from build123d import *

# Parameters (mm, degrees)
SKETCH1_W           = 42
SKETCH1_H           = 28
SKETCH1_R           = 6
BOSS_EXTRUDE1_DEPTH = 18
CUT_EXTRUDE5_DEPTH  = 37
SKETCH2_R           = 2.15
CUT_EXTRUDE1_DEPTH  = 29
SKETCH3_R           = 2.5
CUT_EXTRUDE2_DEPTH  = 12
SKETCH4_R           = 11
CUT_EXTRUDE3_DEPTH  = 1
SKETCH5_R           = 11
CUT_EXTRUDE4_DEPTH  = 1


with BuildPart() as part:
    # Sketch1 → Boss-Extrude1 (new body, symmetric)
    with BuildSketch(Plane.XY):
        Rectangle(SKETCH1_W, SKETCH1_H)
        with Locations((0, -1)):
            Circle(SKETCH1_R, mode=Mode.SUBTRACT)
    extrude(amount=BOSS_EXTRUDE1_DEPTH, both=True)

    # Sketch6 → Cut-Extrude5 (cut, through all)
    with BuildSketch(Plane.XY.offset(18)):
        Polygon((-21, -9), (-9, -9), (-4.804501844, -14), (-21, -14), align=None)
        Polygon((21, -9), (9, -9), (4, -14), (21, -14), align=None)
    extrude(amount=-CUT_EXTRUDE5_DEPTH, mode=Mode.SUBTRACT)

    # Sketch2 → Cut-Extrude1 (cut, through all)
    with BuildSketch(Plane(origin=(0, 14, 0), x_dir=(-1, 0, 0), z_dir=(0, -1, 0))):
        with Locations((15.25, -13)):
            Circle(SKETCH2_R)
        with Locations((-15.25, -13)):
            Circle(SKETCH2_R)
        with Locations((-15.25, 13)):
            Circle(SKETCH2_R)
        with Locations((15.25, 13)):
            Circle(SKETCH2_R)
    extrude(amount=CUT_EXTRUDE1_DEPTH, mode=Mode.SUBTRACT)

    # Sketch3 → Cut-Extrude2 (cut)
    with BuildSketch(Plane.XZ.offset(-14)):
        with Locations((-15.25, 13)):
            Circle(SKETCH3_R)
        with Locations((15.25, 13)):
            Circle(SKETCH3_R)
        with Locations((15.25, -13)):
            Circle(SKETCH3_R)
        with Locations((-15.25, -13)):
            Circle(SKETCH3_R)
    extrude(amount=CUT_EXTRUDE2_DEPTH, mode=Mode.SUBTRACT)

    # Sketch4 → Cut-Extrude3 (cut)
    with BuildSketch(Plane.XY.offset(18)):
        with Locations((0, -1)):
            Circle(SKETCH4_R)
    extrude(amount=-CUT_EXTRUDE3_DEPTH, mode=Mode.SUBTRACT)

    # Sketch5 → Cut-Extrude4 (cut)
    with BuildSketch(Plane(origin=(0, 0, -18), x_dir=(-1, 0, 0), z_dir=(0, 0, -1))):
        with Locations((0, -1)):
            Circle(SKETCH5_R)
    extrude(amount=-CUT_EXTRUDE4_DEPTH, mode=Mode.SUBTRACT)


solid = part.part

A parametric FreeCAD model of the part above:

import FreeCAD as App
import Part
import Sketcher
from FreeCAD import Vector
Q = App.Units.Quantity


def add_polygon(sketch, points):
    """Adds a closed chain of lines whose ends are joined by coincident constraints."""
    first, n = sketch.GeometryCount, len(points)
    for a, b in zip(points, points[1:] + points[:1]):
        sketch.addGeometry(Part.LineSegment(App.Vector(*a, 0), App.Vector(*b, 0)), False)
    for i in range(n):
        sketch.addConstraint(Sketcher.Constraint("Coincident", first + i, 2, first + (i + 1) % n, 1))

doc = App.newDocument("Part")
params = doc.addObject("Spreadsheet::Sheet", "Params")
for row, (alias, value) in enumerate([
    ("sketch1_diameter", "12 mm"),
    ("sketch1_width", "42 mm"),
    ("sketch1_height", "28 mm"),
    ("pad1_length", "36 mm"),
    ("sketch2_width", "12 mm"),
    ("sketch2_width2", "17 mm"),
    ("sketch2_height", "5 mm"),
    ("sketch3_diameter", "4.3 mm"),
    ("sketch4_diameter", "5 mm"),
    ("pocket3_length", "12 mm"),
    ("sketch5_diameter", "22 mm"),
    ("pocket4_length", "1 mm"),
    ("sketch6_diameter", "22 mm"),
    ("pocket5_length", "1 mm"),
], start=1):
    params.set(f"A{row}", alias)
    params.set(f"B{row}", "=" + value)
    params.setAlias(f"B{row}", alias)

body = doc.addObject("PartDesign::Body", "Body")

sketch1 = doc.addObject("Sketcher::SketchObject", "Sketch")
body.addObject(sketch1)
sketch1.AttachmentSupport = (doc.XY_Plane, [""])
sketch1.MapMode = "FlatFace"
add_polygon(sketch1, [(-21, 14), (-21, -14), (21, -14), (21, 14)])
sketch1.addGeometry(Part.Circle(Vector(0, -1, 0), Vector(0, 0, 1), 6), False)
sketch1.addConstraint([
    Sketcher.Constraint("Vertical", 0),
    Sketcher.Constraint("Horizontal", 1),
    Sketcher.Constraint("Vertical", 2),
    Sketcher.Constraint("Horizontal", 3),
    Sketcher.Constraint("Symmetric", 0, 2, 2, 2, -1, 1),
    Sketcher.Constraint("PointOnObject", 4, 3, -2),
    Sketcher.Constraint("Diameter", 4, Q("12 mm")),
    Sketcher.Constraint("DistanceX", 1, 1, 1, 2, Q("42 mm")),
    Sketcher.Constraint("DistanceY", 0, 2, 0, 1, Q("28 mm")),
    Sketcher.Constraint("DistanceY", 4, 3, -1, 1, Q("1 mm")),
])
sketch1.setExpression("Constraints[10]", "Params.sketch1_diameter")
sketch1.setExpression("Constraints[11]", "Params.sketch1_width")
sketch1.setExpression("Constraints[12]", "Params.sketch1_height")
pad1 = doc.addObject("PartDesign::Pad", "Pad")
body.addObject(pad1)
pad1.Profile = sketch1
pad1.setExpression("Length", "Params.pad1_length")
pad1.Midplane = True

sketch2 = doc.addObject("Sketcher::SketchObject", "Sketch001")
body.addObject(sketch2)
sketch2.AttachmentSupport = (doc.XY_Plane, [""])
sketch2.MapMode = "FlatFace"
sketch2.AttachmentOffset = App.Placement(Vector(0, 0, 18), App.Rotation())
add_polygon(sketch2, [(-9, -9), (-21, -9), (-21, -14), (-4.804502, -14)])
add_polygon(sketch2, [(21, -9), (9, -9), (4, -14), (21, -14)])
sketch2.addConstraint([
    Sketcher.Constraint("Horizontal", 0),
    Sketcher.Constraint("Vertical", 1),
    Sketcher.Constraint("Horizontal", 2),
    Sketcher.Constraint("Horizontal", 4),
    Sketcher.Constraint("Horizontal", 6),
    Sketcher.Constraint("Vertical", 7),
    Sketcher.Constraint("Symmetric", 3, 2, 4, 2, -2),
    Sketcher.Constraint("Symmetric", 1, 2, 6, 2, -2),
    Sketcher.Constraint("DistanceX", 0, 2, 0, 1, Q("12 mm")),
    Sketcher.Constraint("DistanceX", 6, 1, 6, 2, Q("17 mm")),
    Sketcher.Constraint("DistanceY", 1, 2, 1, 1, Q("5 mm")),
    Sketcher.Constraint("Angle", 3, Q("130 deg")),
    Sketcher.Constraint("DistanceX", 0, 2, -1, 1, Q("21 mm")),
    Sketcher.Constraint("DistanceY", 0, 2, -1, 1, Q("9 mm")),
])
sketch2.setExpression("Constraints[16]", "Params.sketch2_width")
sketch2.setExpression("Constraints[17]", "Params.sketch2_width2")
sketch2.setExpression("Constraints[18]", "Params.sketch2_height")
pocket1 = doc.addObject("PartDesign::Pocket", "Pocket")
body.addObject(pocket1)
pocket1.Profile = sketch2
pocket1.Type = "ThroughAll"

sketch3 = doc.addObject("Sketcher::SketchObject", "Sketch002")
body.addObject(sketch3)
sketch3.AttachmentSupport = (doc.XZ_Plane, [""])
sketch3.MapMode = "FlatFace"
sketch3.AttachmentOffset = App.Placement(Vector(0, 0, -14), App.Rotation())
sketch3.addGeometry([
    Part.Circle(Vector(-15.25, 13, 0), Vector(0, 0, 1), 2.15),
    Part.Circle(Vector(15.25, 13, 0), Vector(0, 0, 1), 2.15),
    Part.Circle(Vector(15.25, -13, 0), Vector(0, 0, 1), 2.15),
    Part.Circle(Vector(-15.25, -13, 0), Vector(0, 0, 1), 2.15),
], False)
sketch3.addConstraint([
    Sketcher.Constraint("Equal", 0, 1),
    Sketcher.Constraint("Equal", 1, 2),
    Sketcher.Constraint("Equal", 2, 3),
    Sketcher.Constraint("Symmetric", 0, 3, 2, 3, -1, 1),
    Sketcher.Constraint("Symmetric", 1, 3, 3, 3, -1, 1),
    Sketcher.Constraint("Symmetric", 0, 3, 1, 3, -2),
    Sketcher.Constraint("Diameter", 0, Q("4.3 mm")),
    Sketcher.Constraint("DistanceY", -1, 1, 0, 3, Q("13 mm")),
    Sketcher.Constraint("DistanceX", 0, 3, 1, 3, Q("30.5 mm")),
])
sketch3.setExpression("Constraints[6]", "Params.sketch3_diameter")
pocket2 = doc.addObject("PartDesign::Pocket", "Pocket001")
body.addObject(pocket2)
pocket2.Profile = sketch3
pocket2.Type = "ThroughAll"
pocket2.Reversed = True

sketch4 = doc.addObject("Sketcher::SketchObject", "Sketch003")
body.addObject(sketch4)
sketch4.AttachmentSupport = (doc.XZ_Plane, [""])
sketch4.MapMode = "FlatFace"
sketch4.AttachmentOffset = App.Placement(Vector(0, 0, -14), App.Rotation())
sketch4.addGeometry([
    Part.Circle(Vector(-15.25, 13, 0), Vector(0, 0, 1), 2.5),
    Part.Circle(Vector(15.25, 13, 0), Vector(0, 0, 1), 2.5),
    Part.Circle(Vector(15.25, -13, 0), Vector(0, 0, 1), 2.5),
    Part.Circle(Vector(-15.25, -13, 0), Vector(0, 0, 1), 2.5),
], False)
sketch4.addConstraint([
    Sketcher.Constraint("Equal", 0, 1),
    Sketcher.Constraint("Equal", 1, 2),
    Sketcher.Constraint("Equal", 2, 3),
    Sketcher.Constraint("Symmetric", 0, 3, 2, 3, -1, 1),
    Sketcher.Constraint("Symmetric", 1, 3, 3, 3, -1, 1),
    Sketcher.Constraint("Symmetric", 0, 3, 1, 3, -2),
    Sketcher.Constraint("Diameter", 0, Q("5 mm")),
    Sketcher.Constraint("DistanceY", -1, 1, 0, 3, Q("13 mm")),
    Sketcher.Constraint("DistanceX", 0, 3, 1, 3, Q("30.5 mm")),
])
sketch4.setExpression("Constraints[6]", "Params.sketch4_diameter")
pocket3 = doc.addObject("PartDesign::Pocket", "Pocket002")
body.addObject(pocket3)
pocket3.Profile = sketch4
pocket3.setExpression("Length", "Params.pocket3_length")
pocket3.Reversed = True

sketch5 = doc.addObject("Sketcher::SketchObject", "Sketch004")
body.addObject(sketch5)
sketch5.AttachmentSupport = (doc.XY_Plane, [""])
sketch5.MapMode = "FlatFace"
sketch5.AttachmentOffset = App.Placement(Vector(0, 0, 18), App.Rotation())
sketch5.addGeometry(Part.Circle(Vector(0, -1, 0), Vector(0, 0, 1), 11), False)
sketch5.addConstraint([
    Sketcher.Constraint("PointOnObject", 0, 3, -2),
    Sketcher.Constraint("Diameter", 0, Q("22 mm")),
    Sketcher.Constraint("DistanceY", 0, 3, -1, 1, Q("1 mm")),
])
sketch5.setExpression("Constraints[1]", "Params.sketch5_diameter")
pocket4 = doc.addObject("PartDesign::Pocket", "Pocket003")
body.addObject(pocket4)
pocket4.Profile = sketch5
pocket4.setExpression("Length", "Params.pocket4_length")

sketch6 = doc.addObject("Sketcher::SketchObject", "Sketch005")
body.addObject(sketch6)
sketch6.AttachmentSupport = (doc.XY_Plane, [""])
sketch6.MapMode = "FlatFace"
sketch6.AttachmentOffset = App.Placement(Vector(0, 0, -18), App.Rotation())
sketch6.addGeometry(Part.Circle(Vector(0, -1, 0), Vector(0, 0, 1), 11), False)
sketch6.addConstraint([
    Sketcher.Constraint("PointOnObject", 0, 3, -2),
    Sketcher.Constraint("Diameter", 0, Q("22 mm")),
    Sketcher.Constraint("DistanceY", 0, 3, -1, 1, Q("1 mm")),
])
sketch6.setExpression("Constraints[1]", "Params.sketch6_diameter")
pocket5 = doc.addObject("PartDesign::Pocket", "Pocket004")
body.addObject(pocket5)
pocket5.Profile = sketch6
pocket5.setExpression("Length", "Params.pocket5_length")
pocket5.Reversed = True

doc.recompute()
